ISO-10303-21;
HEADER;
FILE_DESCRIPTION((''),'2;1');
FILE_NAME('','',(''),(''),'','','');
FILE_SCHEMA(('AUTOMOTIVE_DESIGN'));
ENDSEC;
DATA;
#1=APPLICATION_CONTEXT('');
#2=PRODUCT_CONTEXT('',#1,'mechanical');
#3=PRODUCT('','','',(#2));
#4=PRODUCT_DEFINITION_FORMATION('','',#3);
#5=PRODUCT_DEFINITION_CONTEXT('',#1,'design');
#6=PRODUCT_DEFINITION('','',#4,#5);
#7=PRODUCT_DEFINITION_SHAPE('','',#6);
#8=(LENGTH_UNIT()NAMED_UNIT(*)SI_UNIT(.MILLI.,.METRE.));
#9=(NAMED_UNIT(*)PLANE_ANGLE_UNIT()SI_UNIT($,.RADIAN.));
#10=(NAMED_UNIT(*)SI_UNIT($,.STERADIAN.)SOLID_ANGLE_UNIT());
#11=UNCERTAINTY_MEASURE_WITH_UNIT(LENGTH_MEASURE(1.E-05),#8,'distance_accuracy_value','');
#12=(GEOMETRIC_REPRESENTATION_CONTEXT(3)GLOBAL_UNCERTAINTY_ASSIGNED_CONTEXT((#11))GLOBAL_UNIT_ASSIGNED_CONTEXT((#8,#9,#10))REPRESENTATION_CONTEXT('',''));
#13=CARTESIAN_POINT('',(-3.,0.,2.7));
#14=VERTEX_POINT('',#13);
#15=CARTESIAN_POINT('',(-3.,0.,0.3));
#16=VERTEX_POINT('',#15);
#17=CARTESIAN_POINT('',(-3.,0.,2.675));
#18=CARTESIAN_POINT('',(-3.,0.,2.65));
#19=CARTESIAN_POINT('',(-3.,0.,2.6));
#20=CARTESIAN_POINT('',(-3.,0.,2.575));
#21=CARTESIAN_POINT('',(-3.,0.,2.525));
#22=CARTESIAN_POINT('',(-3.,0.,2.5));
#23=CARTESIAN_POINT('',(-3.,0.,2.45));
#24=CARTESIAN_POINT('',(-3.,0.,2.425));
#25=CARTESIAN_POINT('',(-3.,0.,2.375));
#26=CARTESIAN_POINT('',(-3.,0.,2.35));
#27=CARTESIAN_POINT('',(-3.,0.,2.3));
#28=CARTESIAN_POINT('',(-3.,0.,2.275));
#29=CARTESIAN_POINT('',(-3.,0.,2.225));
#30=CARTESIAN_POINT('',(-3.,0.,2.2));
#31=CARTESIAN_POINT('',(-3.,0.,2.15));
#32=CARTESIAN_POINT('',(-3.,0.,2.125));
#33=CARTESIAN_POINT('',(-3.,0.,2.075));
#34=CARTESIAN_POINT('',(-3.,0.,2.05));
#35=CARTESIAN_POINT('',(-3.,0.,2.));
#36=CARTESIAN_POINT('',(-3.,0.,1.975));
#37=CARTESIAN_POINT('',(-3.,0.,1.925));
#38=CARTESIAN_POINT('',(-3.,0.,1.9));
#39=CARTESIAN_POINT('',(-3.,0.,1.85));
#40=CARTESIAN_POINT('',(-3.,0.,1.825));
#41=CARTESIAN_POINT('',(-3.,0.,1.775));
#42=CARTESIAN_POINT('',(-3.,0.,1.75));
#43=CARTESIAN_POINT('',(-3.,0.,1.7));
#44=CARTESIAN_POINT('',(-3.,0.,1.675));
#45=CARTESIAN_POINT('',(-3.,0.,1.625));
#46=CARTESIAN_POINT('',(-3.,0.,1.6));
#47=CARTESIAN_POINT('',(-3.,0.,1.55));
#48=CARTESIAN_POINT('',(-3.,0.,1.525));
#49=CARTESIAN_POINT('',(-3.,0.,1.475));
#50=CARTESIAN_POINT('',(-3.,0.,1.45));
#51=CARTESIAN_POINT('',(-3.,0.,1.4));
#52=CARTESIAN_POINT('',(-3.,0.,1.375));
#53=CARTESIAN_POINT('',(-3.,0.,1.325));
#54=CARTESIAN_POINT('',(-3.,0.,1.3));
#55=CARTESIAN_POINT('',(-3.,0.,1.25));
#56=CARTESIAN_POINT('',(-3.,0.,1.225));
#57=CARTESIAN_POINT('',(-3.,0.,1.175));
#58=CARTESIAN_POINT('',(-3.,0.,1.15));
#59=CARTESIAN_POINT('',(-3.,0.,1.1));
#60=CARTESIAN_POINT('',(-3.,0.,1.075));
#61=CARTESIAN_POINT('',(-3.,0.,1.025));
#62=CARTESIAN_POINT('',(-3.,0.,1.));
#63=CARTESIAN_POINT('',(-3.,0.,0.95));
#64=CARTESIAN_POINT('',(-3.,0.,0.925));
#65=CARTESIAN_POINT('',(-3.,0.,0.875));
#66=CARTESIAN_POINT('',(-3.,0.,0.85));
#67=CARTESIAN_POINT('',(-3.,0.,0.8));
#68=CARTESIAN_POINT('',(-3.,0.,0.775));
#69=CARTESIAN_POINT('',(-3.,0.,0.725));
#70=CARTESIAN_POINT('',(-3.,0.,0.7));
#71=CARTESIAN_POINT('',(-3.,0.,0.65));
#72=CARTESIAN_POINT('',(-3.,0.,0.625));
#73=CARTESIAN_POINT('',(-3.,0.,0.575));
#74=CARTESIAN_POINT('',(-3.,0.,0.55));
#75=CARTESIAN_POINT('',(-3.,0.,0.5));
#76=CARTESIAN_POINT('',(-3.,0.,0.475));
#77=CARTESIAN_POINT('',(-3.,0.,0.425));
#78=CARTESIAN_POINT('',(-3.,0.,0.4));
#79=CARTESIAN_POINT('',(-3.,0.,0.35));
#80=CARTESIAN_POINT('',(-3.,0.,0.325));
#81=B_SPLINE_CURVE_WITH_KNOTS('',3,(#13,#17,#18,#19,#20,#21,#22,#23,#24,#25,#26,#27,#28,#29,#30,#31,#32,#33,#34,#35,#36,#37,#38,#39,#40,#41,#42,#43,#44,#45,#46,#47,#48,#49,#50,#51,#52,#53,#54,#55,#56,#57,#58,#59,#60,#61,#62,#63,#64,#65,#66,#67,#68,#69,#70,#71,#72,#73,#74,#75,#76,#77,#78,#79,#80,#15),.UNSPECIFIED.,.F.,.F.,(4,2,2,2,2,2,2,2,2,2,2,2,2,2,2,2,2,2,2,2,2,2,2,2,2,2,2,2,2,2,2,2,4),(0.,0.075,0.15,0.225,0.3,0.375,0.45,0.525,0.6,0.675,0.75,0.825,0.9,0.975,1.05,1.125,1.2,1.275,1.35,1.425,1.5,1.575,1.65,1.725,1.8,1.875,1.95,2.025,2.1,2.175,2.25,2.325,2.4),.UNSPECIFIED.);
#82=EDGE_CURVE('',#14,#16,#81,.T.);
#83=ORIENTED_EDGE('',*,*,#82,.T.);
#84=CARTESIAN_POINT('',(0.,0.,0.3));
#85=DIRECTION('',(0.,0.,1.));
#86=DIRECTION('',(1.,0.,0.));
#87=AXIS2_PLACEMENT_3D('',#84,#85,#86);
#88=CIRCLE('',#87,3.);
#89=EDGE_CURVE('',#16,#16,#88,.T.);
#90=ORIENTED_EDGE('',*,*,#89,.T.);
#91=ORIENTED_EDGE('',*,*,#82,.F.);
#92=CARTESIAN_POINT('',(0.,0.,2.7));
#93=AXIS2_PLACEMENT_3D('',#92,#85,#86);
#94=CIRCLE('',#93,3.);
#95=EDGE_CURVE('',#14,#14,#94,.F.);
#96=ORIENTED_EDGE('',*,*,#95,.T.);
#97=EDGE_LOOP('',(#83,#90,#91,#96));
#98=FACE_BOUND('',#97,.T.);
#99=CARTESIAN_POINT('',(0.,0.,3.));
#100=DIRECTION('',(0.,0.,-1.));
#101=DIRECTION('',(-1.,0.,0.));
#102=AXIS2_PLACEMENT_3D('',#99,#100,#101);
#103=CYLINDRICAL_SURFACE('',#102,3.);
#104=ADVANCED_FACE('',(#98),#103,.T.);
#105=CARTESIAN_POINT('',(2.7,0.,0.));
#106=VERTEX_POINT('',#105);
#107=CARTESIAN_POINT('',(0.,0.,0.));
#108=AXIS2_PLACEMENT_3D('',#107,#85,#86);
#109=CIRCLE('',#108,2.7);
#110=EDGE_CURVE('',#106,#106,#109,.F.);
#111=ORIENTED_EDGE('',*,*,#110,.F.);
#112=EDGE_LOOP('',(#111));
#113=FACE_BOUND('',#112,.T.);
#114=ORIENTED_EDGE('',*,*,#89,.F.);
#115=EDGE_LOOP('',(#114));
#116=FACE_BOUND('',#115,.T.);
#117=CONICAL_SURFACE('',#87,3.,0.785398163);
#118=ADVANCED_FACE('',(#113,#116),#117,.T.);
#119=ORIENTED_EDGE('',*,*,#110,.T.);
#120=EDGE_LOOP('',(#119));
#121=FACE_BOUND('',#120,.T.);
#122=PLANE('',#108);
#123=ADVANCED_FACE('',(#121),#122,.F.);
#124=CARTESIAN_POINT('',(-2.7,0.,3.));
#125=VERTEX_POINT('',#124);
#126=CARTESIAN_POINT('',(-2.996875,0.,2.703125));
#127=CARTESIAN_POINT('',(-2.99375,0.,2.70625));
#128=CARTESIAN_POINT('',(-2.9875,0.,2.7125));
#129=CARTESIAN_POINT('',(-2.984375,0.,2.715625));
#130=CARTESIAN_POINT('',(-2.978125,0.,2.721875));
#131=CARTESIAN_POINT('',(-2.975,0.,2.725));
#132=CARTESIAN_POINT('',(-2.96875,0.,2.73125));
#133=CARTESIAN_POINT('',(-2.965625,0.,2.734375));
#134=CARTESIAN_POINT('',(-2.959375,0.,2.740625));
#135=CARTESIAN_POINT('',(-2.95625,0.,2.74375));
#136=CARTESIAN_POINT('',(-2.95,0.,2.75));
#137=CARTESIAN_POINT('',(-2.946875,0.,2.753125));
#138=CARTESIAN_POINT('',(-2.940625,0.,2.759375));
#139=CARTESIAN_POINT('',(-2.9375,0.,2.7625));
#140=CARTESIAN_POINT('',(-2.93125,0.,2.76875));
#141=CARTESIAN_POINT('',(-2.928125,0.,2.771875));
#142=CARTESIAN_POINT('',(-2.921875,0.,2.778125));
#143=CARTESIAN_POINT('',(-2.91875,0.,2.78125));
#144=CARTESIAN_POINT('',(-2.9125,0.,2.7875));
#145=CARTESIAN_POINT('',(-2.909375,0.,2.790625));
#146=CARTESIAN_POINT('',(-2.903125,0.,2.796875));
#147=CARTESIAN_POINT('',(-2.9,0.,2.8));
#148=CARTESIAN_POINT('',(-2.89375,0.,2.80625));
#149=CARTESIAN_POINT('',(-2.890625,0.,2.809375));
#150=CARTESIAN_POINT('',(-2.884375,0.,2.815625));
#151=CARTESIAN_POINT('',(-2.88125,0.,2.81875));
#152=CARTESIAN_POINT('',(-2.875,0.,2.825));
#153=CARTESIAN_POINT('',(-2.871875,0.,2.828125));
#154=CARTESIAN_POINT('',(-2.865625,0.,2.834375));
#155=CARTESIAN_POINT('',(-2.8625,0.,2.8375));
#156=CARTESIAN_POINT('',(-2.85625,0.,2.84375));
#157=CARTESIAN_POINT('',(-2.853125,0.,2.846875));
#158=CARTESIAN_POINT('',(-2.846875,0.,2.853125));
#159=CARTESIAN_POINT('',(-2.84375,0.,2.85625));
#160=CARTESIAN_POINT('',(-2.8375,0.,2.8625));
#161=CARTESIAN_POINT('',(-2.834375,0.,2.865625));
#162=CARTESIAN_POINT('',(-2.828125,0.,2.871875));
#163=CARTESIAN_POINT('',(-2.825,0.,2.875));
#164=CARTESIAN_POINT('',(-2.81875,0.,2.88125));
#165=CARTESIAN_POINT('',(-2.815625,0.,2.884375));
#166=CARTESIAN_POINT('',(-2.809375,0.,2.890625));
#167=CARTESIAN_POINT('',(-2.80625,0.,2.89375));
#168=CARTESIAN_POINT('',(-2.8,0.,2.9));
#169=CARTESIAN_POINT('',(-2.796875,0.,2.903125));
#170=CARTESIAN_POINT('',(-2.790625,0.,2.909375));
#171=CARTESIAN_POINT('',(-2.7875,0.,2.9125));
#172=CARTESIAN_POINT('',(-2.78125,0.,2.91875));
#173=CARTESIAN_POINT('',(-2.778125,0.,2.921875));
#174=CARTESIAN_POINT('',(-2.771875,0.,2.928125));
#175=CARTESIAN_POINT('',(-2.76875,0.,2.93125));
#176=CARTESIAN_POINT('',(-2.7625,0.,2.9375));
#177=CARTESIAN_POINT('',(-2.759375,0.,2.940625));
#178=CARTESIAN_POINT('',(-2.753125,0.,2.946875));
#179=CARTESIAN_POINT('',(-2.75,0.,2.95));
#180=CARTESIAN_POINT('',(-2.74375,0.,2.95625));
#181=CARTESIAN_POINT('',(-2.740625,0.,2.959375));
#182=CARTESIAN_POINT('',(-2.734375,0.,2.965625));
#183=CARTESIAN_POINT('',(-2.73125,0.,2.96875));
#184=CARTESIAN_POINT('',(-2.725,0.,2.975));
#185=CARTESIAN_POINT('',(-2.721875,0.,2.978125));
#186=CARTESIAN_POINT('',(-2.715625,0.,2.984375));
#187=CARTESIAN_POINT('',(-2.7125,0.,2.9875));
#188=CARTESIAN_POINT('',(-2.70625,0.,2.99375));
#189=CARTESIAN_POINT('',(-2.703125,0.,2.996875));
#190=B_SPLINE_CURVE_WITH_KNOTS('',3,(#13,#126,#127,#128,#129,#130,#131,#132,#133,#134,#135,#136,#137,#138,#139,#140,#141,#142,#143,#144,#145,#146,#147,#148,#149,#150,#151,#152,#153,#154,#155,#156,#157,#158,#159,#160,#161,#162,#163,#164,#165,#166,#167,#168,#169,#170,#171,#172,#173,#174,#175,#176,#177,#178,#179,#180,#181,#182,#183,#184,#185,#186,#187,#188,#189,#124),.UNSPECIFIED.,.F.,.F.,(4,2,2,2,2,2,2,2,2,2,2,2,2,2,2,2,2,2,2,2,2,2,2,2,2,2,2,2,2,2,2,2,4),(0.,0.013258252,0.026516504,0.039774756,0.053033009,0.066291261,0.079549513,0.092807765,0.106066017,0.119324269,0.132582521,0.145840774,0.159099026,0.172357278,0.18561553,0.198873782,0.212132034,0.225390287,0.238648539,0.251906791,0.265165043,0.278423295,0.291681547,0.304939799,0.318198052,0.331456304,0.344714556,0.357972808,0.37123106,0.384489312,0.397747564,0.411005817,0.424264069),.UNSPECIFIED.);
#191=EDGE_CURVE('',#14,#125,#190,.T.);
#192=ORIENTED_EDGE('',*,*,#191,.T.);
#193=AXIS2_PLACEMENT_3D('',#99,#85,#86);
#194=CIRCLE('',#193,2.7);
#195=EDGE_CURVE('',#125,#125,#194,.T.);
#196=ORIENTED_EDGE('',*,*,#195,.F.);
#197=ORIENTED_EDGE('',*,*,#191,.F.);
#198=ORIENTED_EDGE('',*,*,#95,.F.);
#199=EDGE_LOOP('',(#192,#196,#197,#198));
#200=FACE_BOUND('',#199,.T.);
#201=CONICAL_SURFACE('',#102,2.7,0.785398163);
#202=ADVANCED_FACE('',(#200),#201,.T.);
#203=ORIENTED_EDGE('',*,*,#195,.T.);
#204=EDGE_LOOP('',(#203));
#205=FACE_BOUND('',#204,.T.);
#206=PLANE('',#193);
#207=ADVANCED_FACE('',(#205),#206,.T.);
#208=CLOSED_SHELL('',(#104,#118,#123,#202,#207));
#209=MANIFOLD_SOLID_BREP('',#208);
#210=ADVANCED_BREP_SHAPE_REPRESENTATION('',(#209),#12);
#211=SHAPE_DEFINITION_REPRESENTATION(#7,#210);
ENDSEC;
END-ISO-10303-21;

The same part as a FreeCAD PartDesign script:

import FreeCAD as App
import Part
import Sketcher
from FreeCAD import Vector
Q = App.Units.Quantity


def edges_at(feature, points):
    """Names of the edges that pass closest to the given points."""
    edges = feature.Shape.Edges
    near = lambda p: min(range(len(edges)), key=lambda i: edges[i].distToShape(Part.Vertex(*p))[0])
    return sorted({f"Edge{near(p) + 1}" for p in points})

doc = App.newDocument("Part")
body = doc.addObject("PartDesign::Body", "Body")

sketch1 = body.newObject("Sketcher::SketchObject", "Sketch")
sketch1.AttachmentSupport = (doc.getObject("XY_Plane"), [""])
sketch1.MapMode = "FlatFace"
sketch1.addGeometry(Part.Circle(Vector(0, 0, 0), Vector(0, 0, 1), 3), False)
sketch1.addConstraint([
    Sketcher.Constraint("Coincident", 0, 3, -1, 1),
    Sketcher.Constraint("Diameter", 0, Q("6 mm")),
])
pad1 = body.newObject("PartDesign::Pad", "Pad")
pad1.Profile = sketch1
pad1.Length = 3
doc.recompute()

chamfer = body.newObject("PartDesign::Chamfer", "Chamfer")
chamfer.Base = (pad1, edges_at(pad1, [(-3, 0, 0), (-3, 0, 3)]))
chamfer.Size = 0.3

doc.recompute()
